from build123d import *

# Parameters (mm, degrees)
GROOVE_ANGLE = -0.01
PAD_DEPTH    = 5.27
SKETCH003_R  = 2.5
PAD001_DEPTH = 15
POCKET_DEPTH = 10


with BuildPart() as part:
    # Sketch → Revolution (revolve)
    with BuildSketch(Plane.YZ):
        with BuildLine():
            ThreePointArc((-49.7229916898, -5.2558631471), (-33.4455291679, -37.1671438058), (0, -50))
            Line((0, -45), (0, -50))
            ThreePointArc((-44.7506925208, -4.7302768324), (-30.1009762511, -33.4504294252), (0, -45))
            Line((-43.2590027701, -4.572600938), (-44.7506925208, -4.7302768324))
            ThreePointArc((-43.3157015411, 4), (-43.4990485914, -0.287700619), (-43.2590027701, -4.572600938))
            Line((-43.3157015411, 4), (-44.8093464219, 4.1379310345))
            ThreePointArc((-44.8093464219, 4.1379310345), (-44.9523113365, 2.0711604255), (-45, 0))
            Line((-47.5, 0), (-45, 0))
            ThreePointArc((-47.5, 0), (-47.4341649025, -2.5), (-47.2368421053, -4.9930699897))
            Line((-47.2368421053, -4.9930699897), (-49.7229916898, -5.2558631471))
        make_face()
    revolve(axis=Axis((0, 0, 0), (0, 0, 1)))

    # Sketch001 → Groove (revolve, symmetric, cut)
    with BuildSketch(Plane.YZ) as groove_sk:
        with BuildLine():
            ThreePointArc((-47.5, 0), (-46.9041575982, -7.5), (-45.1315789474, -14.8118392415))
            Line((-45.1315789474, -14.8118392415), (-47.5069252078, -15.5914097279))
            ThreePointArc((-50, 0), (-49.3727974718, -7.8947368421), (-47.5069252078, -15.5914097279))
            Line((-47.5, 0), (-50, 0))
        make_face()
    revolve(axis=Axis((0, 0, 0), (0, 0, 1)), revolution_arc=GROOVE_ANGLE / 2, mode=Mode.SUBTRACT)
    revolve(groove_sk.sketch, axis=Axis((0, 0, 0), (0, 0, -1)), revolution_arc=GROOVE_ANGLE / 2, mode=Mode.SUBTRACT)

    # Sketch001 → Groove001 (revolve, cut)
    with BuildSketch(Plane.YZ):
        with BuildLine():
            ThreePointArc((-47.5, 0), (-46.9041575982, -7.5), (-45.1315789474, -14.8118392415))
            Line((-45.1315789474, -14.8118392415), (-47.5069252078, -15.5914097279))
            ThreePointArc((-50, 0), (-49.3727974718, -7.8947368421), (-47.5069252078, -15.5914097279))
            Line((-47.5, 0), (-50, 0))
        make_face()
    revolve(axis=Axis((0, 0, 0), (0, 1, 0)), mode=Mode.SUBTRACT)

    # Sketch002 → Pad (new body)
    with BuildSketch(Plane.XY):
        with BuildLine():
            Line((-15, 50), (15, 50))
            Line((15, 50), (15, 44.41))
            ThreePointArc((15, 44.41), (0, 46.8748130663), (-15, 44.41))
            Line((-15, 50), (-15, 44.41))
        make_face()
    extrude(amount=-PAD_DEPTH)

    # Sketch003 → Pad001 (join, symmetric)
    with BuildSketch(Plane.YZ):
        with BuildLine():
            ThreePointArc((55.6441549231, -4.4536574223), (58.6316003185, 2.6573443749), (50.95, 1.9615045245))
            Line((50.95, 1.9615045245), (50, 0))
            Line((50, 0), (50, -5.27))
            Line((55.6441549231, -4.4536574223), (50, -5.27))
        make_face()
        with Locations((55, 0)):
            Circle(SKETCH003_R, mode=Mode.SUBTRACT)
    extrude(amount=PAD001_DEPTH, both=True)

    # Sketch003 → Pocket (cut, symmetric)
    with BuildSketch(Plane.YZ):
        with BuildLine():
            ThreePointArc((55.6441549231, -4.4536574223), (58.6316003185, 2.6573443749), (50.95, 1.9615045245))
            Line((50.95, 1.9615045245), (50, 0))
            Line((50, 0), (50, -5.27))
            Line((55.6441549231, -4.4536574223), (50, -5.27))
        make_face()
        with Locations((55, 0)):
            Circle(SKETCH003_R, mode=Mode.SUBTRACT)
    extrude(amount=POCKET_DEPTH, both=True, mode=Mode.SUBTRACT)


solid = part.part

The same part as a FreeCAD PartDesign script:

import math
import FreeCAD as App
import Part
import Sketcher
from FreeCAD import Vector
Q = App.Units.Quantity

doc = App.newDocument("Part")
params = doc.addObject("Spreadsheet::Sheet", "Params")
for row, (alias, value) in enumerate([
    ("sketch1_radius", "50 mm"),
    ("sketch1_radius2", "45 mm"),
    ("sketch1_radius3", "43.5 mm"),
    ("sketch1_radius4", "47.5 mm"),
    ("revolution_angle", "360 deg"),
    ("sketch2_radius", "50 mm"),
    ("sketch2_radius2", "47.5 mm"),
    ("groove_angle", "0.005 deg"),
    ("sketch3_radius", "50 mm"),
    ("sketch3_radius2", "47.5 mm"),
    ("groove2_angle", "0.005 deg"),
    ("sketch4_radius", "50 mm"),
    ("sketch4_radius2", "47.5 mm"),
    ("groove3_angle", "360 deg"),
    ("sketch5_width", "30 mm"),
    ("sketch5_height", "5.59 mm"),
    ("pad1_length", "5.27 mm"),
    ("sketch6_diameter", "5 mm"),
    ("sketch6_radius", "4.5 mm"),
    ("sketch6_height", "5.27 mm"),
    ("pad2_length", "30 mm"),
    ("sketch7_diameter", "5 mm"),
    ("sketch7_radius", "4.5 mm"),
    ("sketch7_height", "5.27 mm"),
    ("pocket1_length", "20 mm"),
], start=1):
    params.set(f"A{row}", alias)
    params.set(f"B{row}", "=" + value)
    params.setAlias(f"B{row}", alias)

body = doc.addObject("PartDesign::Body", "Body")

# Sketch on YZ plane
sketch1 = body.newObject("Sketcher::SketchObject", "Sketch")
sketch1.AttachmentSupport = (doc.getObject("YZ_Plane"), [""])
sketch1.MapMode = "FlatFace"
sketch1.addGeometry([
    Part.ArcOfCircle(Part.Circle(Vector(0, 0, 0), Vector(0, 0, 1), 50), math.radians(-174), math.radians(-90)),  # 0
    Part.LineSegment(Vector(0, -50, 0), Vector(0, -45, 0)),  # 1
    Part.ArcOfCircle(Part.Circle(Vector(0, 0, 0), Vector(0, 0, 1), 45), math.radians(-174), math.radians(-90)),  # 2
    Part.LineSegment(Vector(-44.8, -4.7, 0), Vector(-43.3, -4.6, 0)),  # 3
    Part.ArcOfCircle(Part.Circle(Vector(0, 0, 0), Vector(0, 0, 1), 43.5), math.radians(174.72), math.radians(186.03)),  # 4
    Part.LineSegment(Vector(-43.3, 4, 0), Vector(-44.8, 4.1, 0)),  # 5
    Part.ArcOfCircle(Part.Circle(Vector(0, 0, 0), Vector(0, 0, 1), 45), math.radians(174.72), math.radians(180)),  # 6
    Part.LineSegment(Vector(-45, 0, 0), Vector(-47.5, 0, 0)),  # 7
    Part.ArcOfCircle(Part.Circle(Vector(0, 0, 0), Vector(0, 0, 1), 47.5), math.radians(-180), math.radians(-173.97)),  # 8
    Part.LineSegment(Vector(-47.2, -5, 0), Vector(-49.7, -5.3, 0)),  # 9
], False)
sketch1.addConstraint([
    Sketcher.Constraint("Coincident", 0, 2, 1, 1),
    Sketcher.Constraint("Coincident", 1, 2, 2, 2),
    Sketcher.Constraint("Coincident", 2, 1, 3, 1),
    Sketcher.Constraint("Coincident", 3, 2, 4, 2),
    Sketcher.Constraint("Coincident", 4, 1, 5, 1),
    Sketcher.Constraint("Coincident", 5, 2, 6, 1),
    Sketcher.Constraint("Coincident", 6, 2, 7, 1),
    Sketcher.Constraint("Coincident", 7, 2, 8, 1),
    Sketcher.Constraint("Coincident", 8, 2, 9, 1),
    Sketcher.Constraint("Coincident", 9, 2, 0, 1),
    Sketcher.Constraint("Vertical", 1),
    Sketcher.Constraint("Horizontal", 7),
    Sketcher.Constraint("Coincident", 0, 3, -1, 1),
    Sketcher.Constraint("Coincident", 2, 3, -1, 1),
    Sketcher.Constraint("Coincident", 4, 3, -1, 1),
    Sketcher.Constraint("Coincident", 6, 3, -1, 1),
    Sketcher.Constraint("Coincident", 8, 3, -1, 1),
    Sketcher.Constraint("Equal", 2, 6),
    Sketcher.Constraint("PointOnObject", 0, 2, -2),
    Sketcher.Constraint("PointOnObject", 6, 2, -1),
    Sketcher.Constraint("Parallel", 3, 9),
    Sketcher.Constraint("Radius", 0, Q("50 mm")),
    Sketcher.Constraint("Radius", 2, Q("45 mm")),
    Sketcher.Constraint("Radius", 4, Q("43.5 mm")),
    Sketcher.Constraint("Radius", 8, Q("47.5 mm")),
    Sketcher.Constraint("DistanceY", -1, 1, 4, 1, Q("4 mm")),
    Sketcher.Constraint("DistanceY", 8, 2, 5, 2, Q("9.131001 mm")),
    Sketcher.Constraint("DistanceY", 3, 2, -1, 1, Q("4.572601 mm")),
    Sketcher.Constraint("DistanceX", 9, 2, 2, 1, Q("4.972299 mm")),
    Sketcher.Constraint("DistanceY", -1, 1, 5, 2, Q("4.137931 mm")),
])
sketch1.setExpression("Constraints[21]", "Params.sketch1_radius")
sketch1.setExpression("Constraints[22]", "Params.sketch1_radius2")
sketch1.setExpression("Constraints[23]", "Params.sketch1_radius3")
sketch1.setExpression("Constraints[24]", "Params.sketch1_radius4")
revolution = body.newObject("PartDesign::Revolution", "Revolution")
revolution.Profile = sketch1
revolution.ReferenceAxis = (sketch1, ["V_Axis"])
revolution.setExpression("Angle", "Params.revolution_angle")

# Sketch on YZ plane
sketch2 = body.newObject("Sketcher::SketchObject", "Sketch001")
sketch2.AttachmentSupport = (doc.getObject("YZ_Plane"), [""])
sketch2.MapMode = "FlatFace"
sketch2.addGeometry([
    Part.ArcOfCircle(Part.Circle(Vector(0, 0, 0), Vector(0, 0, 1), 47.5), math.radians(180), math.radians(198.17)),
    Part.LineSegment(Vector(-47.5, 0, 0), Vector(-50, 0, 0)),
    Part.ArcOfCircle(Part.Circle(Vector(0, 0, 0), Vector(0, 0, 1), 50), math.radians(180), math.radians(198.17)),
    Part.LineSegment(Vector(-47.5, -15.6, 0), Vector(-45.1, -14.8, 0)),
], False)
sketch2.addConstraint([
    Sketcher.Constraint("Coincident", 0, 1, 1, 1),
    Sketcher.Constraint("Coincident", 1, 2, 2, 1),
    Sketcher.Constraint("Coincident", 2, 2, 3, 1),
    Sketcher.Constraint("Coincident", 3, 2, 0, 2),
    Sketcher.Constraint("Horizontal", 1),
    Sketcher.Constraint("Coincident", 0, 3, -1, 1),
    Sketcher.Constraint("Coincident", 2, 3, -1, 1),
    Sketcher.Constraint("PointOnObject", 0, 1, -1),
    Sketcher.Constraint("Radius", 2, Q("50 mm")),
    Sketcher.Constraint("Radius", 0, Q("47.5 mm")),
    Sketcher.Constraint("DistanceY", 2, 2, -1, 1, Q("15.59141 mm")),
    Sketcher.Constraint("DistanceX", 3, 2, -1, 1, Q("45.131579 mm")),
])
sketch2.setExpression("Constraints[8]", "Params.sketch2_radius")
sketch2.setExpression("Constraints[9]", "Params.sketch2_radius2")
groove = body.newObject("PartDesign::Groove", "Groove")
groove.Profile = sketch2
groove.ReferenceAxis = (sketch2, ["V_Axis"])
groove.setExpression("Angle", "Params.groove_angle")
groove.Reversed = True

# Sketch on YZ plane
sketch3 = body.newObject("Sketcher::SketchObject", "Sketch002")
sketch3.AttachmentSupport = (doc.getObject("YZ_Plane"), [""])
sketch3.MapMode = "FlatFace"
sketch3.addGeometry([
    Part.ArcOfCircle(Part.Circle(Vector(0, 0, 0), Vector(0, 0, 1), 47.5), math.radians(180), math.radians(198.17)),
    Part.LineSegment(Vector(-47.5, 0, 0), Vector(-50, 0, 0)),
    Part.ArcOfCircle(Part.Circle(Vector(0, 0, 0), Vector(0, 0, 1), 50), math.radians(180), math.radians(198.17)),
    Part.LineSegment(Vector(-47.5, -15.6, 0), Vector(-45.1, -14.8, 0)),
], False)
sketch3.addConstraint([
    Sketcher.Constraint("Coincident", 0, 1, 1, 1),
    Sketcher.Constraint("Coincident", 1, 2, 2, 1),
    Sketcher.Constraint("Coincident", 2, 2, 3, 1),
    Sketcher.Constraint("Coincident", 3, 2, 0, 2),
    Sketcher.Constraint("Horizontal", 1),
    Sketcher.Constraint("Coincident", 0, 3, -1, 1),
    Sketcher.Constraint("Coincident", 2, 3, -1, 1),
    Sketcher.Constraint("PointOnObject", 0, 1, -1),
    Sketcher.Constraint("Radius", 2, Q("50 mm")),
    Sketcher.Constraint("Radius", 0, Q("47.5 mm")),
    Sketcher.Constraint("DistanceY", 2, 2, -1, 1, Q("15.59141 mm")),
    Sketcher.Constraint("DistanceX", 3, 2, -1, 1, Q("45.131579 mm")),
])
sketch3.setExpression("Constraints[8]", "Params.sketch3_radius")
sketch3.setExpression("Constraints[9]", "Params.sketch3_radius2")
groove2 = body.newObject("PartDesign::Groove", "Groove001")
groove2.Profile = sketch3
groove2.ReferenceAxis = (sketch3, ["V_Axis"])
groove2.setExpression("Angle", "Params.groove2_angle")

# Sketch on YZ plane
sketch4 = body.newObject("Sketcher::SketchObject", "Sketch003")
sketch4.AttachmentSupport = (doc.getObject("YZ_Plane"), [""])
sketch4.MapMode = "FlatFace"
sketch4.addGeometry([
    Part.ArcOfCircle(Part.Circle(Vector(0, 0, 0), Vector(0, 0, 1), 47.5), math.radians(180), math.radians(198.17)),
    Part.LineSegment(Vector(-47.5, 0, 0), Vector(-50, 0, 0)),
    Part.ArcOfCircle(Part.Circle(Vector(0, 0, 0), Vector(0, 0, 1), 50), math.radians(180), math.radians(198.17)),
    Part.LineSegment(Vector(-47.5, -15.6, 0), Vector(-45.1, -14.8, 0)),
], False)
sketch4.addConstraint([
    Sketcher.Constraint("Coincident", 0, 1, 1, 1),
    Sketcher.Constraint("Coincident", 1, 2, 2, 1),
    Sketcher.Constraint("Coincident", 2, 2, 3, 1),
    Sketcher.Constraint("Coincident", 3, 2, 0, 2),
    Sketcher.Constraint("Horizontal", 1),
    Sketcher.Constraint("Coincident", 0, 3, -1, 1),
    Sketcher.Constraint("Coincident", 2, 3, -1, 1),
    Sketcher.Constraint("PointOnObject", 0, 1, -1),
    Sketcher.Constraint("Radius", 2, Q("50 mm")),
    Sketcher.Constraint("Radius", 0, Q("47.5 mm")),
    Sketcher.Constraint("DistanceY", 2, 2, -1, 1, Q("15.59141 mm")),
    Sketcher.Constraint("DistanceX", 3, 2, -1, 1, Q("45.131579 mm")),
])
sketch4.setExpression("Constraints[8]", "Params.sketch4_radius")
sketch4.setExpression("Constraints[9]", "Params.sketch4_radius2")
groove3 = body.newObject("PartDesign::Groove", "Groove002")
groove3.Profile = sketch4
groove3.ReferenceAxis = (sketch4, ["H_Axis"])
groove3.setExpression("Angle", "Params.groove3_angle")

# Sketch on XY plane
sketch5 = body.newObject("Sketcher::SketchObject", "Sketch004")
sketch5.AttachmentSupport = (doc.getObject("XY_Plane"), [""])
sketch5.MapMode = "FlatFace"
sketch5.addGeometry([
    Part.LineSegment(Vector(15, 50, 0), Vector(-15, 50, 0)),
    Part.LineSegment(Vector(-15, 50, 0), Vector(-15, 44, 0)),
    Part.ArcOfCircle(Part.Circle(Vector(0, 0, 0), Vector(0, 0, 1), 47), math.radians(71), math.radians(109)),
    Part.LineSegment(Vector(15, 44, 0), Vector(15, 50, 0)),
], False)
sketch5.addConstraint([
    Sketcher.Constraint("Coincident", 0, 2, 1, 1),
    Sketcher.Constraint("Coincident", 1, 2, 2, 2),
    Sketcher.Constraint("Coincident", 2, 1, 3, 1),
    Sketcher.Constraint("Coincident", 3, 2, 0, 1),
    Sketcher.Constraint("Horizontal", 0),
    Sketcher.Constraint("Vertical", 1),
    Sketcher.Constraint("Vertical", 3),
    Sketcher.Constraint("Coincident", 2, 3, -1, 1),
    Sketcher.Constraint("Horizontal", 1, 2, 2, 1),
    Sketcher.Constraint("DistanceX", 0, 2, 0, 1, Q("30 mm")),
    Sketcher.Constraint("DistanceY", -1, 1, 0, 2, Q("50 mm")),
    Sketcher.Constraint("DistanceY", 1, 2, 1, 1, Q("5.59 mm")),
])
sketch5.setExpression("Constraints[9]", "Params.sketch5_width")
sketch5.setExpression("Constraints[11]", "Params.sketch5_height")
pad1 = body.newObject("PartDesign::Pad", "Pad")
pad1.Profile = sketch5
pad1.setExpression("Length", "Params.pad1_length")
pad1.Reversed = True

# Sketch on YZ plane
sketch6 = body.newObject("Sketcher::SketchObject", "Sketch005")
sketch6.AttachmentSupport = (doc.getObject("YZ_Plane"), [""])
sketch6.MapMode = "FlatFace"
sketch6.addGeometry([
    Part.ArcOfCircle(Part.Circle(Vector(55, 0, 0), Vector(0, 0, 1), 4.5), math.radians(-82), math.radians(154)),  # 0
    Part.LineSegment(Vector(51, 2, 0), Vector(50, 0, 0)),  # 1
    Part.LineSegment(Vector(50, 0, 0), Vector(50, -5.3, 0)),  # 2
    Part.LineSegment(Vector(50, -5.3, 0), Vector(55.6, -4.5, 0)),  # 3
    Part.Circle(Vector(55, 0, 0), Vector(0, 0, 1), 2.5),  # 4
], False)
sketch6.addConstraint([
    Sketcher.Constraint("Tangent", 0, 2, 1, 1),
    Sketcher.Constraint("Coincident", 1, 2, 2, 1),
    Sketcher.Constraint("Coincident", 2, 2, 3, 1),
    Sketcher.Constraint("Tangent", 3, 2, 0, 1),
    Sketcher.Constraint("Vertical", 2),
    Sketcher.Constraint("Coincident", 4, 3, 0, 3),
    Sketcher.Constraint("PointOnObject", 0, 3, -1),
    Sketcher.Constraint("PointOnObject", 1, 2, -1),
    Sketcher.Constraint("Diameter", 4, Q("5 mm")),
    Sketcher.Constraint("Radius", 0, Q("4.5 mm")),
    Sketcher.Constraint("DistanceX", -1, 1, 0, 3, Q("55 mm")),
    Sketcher.Constraint("DistanceX", -1, 1, 1, 2, Q("50 mm")),
    Sketcher.Constraint("DistanceY", 2, 2, 2, 1, Q("5.27 mm")),
])
sketch6.setExpression("Constraints[8]", "Params.sketch6_diameter")
sketch6.setExpression("Constraints[9]", "Params.sketch6_radius")
sketch6.setExpression("Constraints[12]", "Params.sketch6_height")
pad2 = body.newObject("PartDesign::Pad", "Pad001")
pad2.Profile = sketch6
pad2.setExpression("Length", "Params.pad2_length")
pad2.Midplane = True

# Sketch on YZ plane
sketch7 = body.newObject("Sketcher::SketchObject", "Sketch006")
sketch7.AttachmentSupport = (doc.getObject("YZ_Plane"), [""])
sketch7.MapMode = "FlatFace"
sketch7.addGeometry([
    Part.ArcOfCircle(Part.Circle(Vector(55, 0, 0), Vector(0, 0, 1), 4.5), math.radians(-82), math.radians(154)),  # 0
    Part.LineSegment(Vector(51, 2, 0), Vector(50, 0, 0)),  # 1
    Part.LineSegment(Vector(50, 0, 0), Vector(50, -5.3, 0)),  # 2
    Part.LineSegment(Vector(50, -5.3, 0), Vector(55.6, -4.5, 0)),  # 3
    Part.Circle(Vector(55, 0, 0), Vector(0, 0, 1), 2.5),  # 4
], False)
sketch7.addConstraint([
    Sketcher.Constraint("Tangent", 0, 2, 1, 1),
    Sketcher.Constraint("Coincident", 1, 2, 2, 1),
    Sketcher.Constraint("Coincident", 2, 2, 3, 1),
    Sketcher.Constraint("Tangent", 3, 2, 0, 1),
    Sketcher.Constraint("Vertical", 2),
    Sketcher.Constraint("Coincident", 4, 3, 0, 3),
    Sketcher.Constraint("PointOnObject", 0, 3, -1),
    Sketcher.Constraint("PointOnObject", 1, 2, -1),
    Sketcher.Constraint("Diameter", 4, Q("5 mm")),
    Sketcher.Constraint("Radius", 0, Q("4.5 mm")),
    Sketcher.Constraint("DistanceX", -1, 1, 0, 3, Q("55 mm")),
    Sketcher.Constraint("DistanceX", -1, 1, 1, 2, Q("50 mm")),
    Sketcher.Constraint("DistanceY", 2, 2, 2, 1, Q("5.27 mm")),
])
sketch7.setExpression("Constraints[8]", "Params.sketch7_diameter")
sketch7.setExpression("Constraints[9]", "Params.sketch7_radius")
sketch7.setExpression("Constraints[12]", "Params.sketch7_height")
pocket1 = body.newObject("PartDesign::Pocket", "Pocket")
pocket1.Profile = sketch7
pocket1.setExpression("Length", "Params.pocket1_length")
pocket1.Midplane = True

doc.recompute()
